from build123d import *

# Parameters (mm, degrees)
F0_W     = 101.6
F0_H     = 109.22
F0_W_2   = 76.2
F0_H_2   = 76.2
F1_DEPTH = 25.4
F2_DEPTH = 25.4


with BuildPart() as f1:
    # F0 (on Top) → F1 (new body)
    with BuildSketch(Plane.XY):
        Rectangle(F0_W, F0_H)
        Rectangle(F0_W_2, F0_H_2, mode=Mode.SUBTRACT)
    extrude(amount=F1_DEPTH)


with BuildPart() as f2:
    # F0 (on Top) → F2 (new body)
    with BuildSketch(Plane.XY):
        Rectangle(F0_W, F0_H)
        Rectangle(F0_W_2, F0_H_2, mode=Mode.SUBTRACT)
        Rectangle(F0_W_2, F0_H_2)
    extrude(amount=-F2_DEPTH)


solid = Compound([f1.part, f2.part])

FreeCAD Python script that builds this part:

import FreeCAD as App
import Part
import Sketcher
Q = App.Units.Quantity

doc = App.newDocument("Part")
body = doc.addObject("PartDesign::Body", "Body")

sketch1 = body.newObject("Sketcher::SketchObject", "Sketch")
sketch1.AttachmentSupport = (doc.getObject("XY_Plane"), [""])
sketch1.MapMode = "FlatFace"
sketch1.addGeometry([
    Part.LineSegment(App.Vector(-51, 55, 0), App.Vector(-51, -55, 0)),
    Part.LineSegment(App.Vector(-51, -55, 0), App.Vector(51, -55, 0)),
    Part.LineSegment(App.Vector(51, -55, 0), App.Vector(51, 55, 0)),
    Part.LineSegment(App.Vector(51, 55, 0), App.Vector(-51, 55, 0)),
    Part.LineSegment(App.Vector(38, -38, 0), App.Vector(-38, -38, 0)),
    Part.LineSegment(App.Vector(-38, -38, 0), App.Vector(-38, 38, 0)),
    Part.LineSegment(App.Vector(-38, 38, 0), App.Vector(38, 38, 0)),
    Part.LineSegment(App.Vector(38, 38, 0), App.Vector(38, -38, 0)),
], False)
sketch1.addConstraint([
    Sketcher.Constraint("Coincident", 0, 2, 1, 1),
    Sketcher.Constraint("Coincident", 1, 2, 2, 1),
    Sketcher.Constraint("Coincident", 2, 2, 3, 1),
    Sketcher.Constraint("Coincident", 3, 2, 0, 1),
    Sketcher.Constraint("Coincident", 4, 2, 5, 1),
    Sketcher.Constraint("Coincident", 5, 2, 6, 1),
    Sketcher.Constraint("Coincident", 6, 2, 7, 1),
    Sketcher.Constraint("Coincident", 7, 2, 4, 1),
    Sketcher.Constraint("Vertical", 0),
    Sketcher.Constraint("Horizontal", 1),
    Sketcher.Constraint("Vertical", 2),
    Sketcher.Constraint("Horizontal", 3),
    Sketcher.Constraint("Horizontal", 4),
    Sketcher.Constraint("Vertical", 5),
    Sketcher.Constraint("Horizontal", 6),
    Sketcher.Constraint("Vertical", 7),
    Sketcher.Constraint("Symmetric", 0, 2, 2, 2, -1, 1),
    Sketcher.Constraint("Symmetric", 4, 2, 6, 2, -1, 1),
    Sketcher.Constraint("Equal", 6, 5),
    Sketcher.Constraint("DistanceX", 1, 1, 1, 2, Q("4 in")),
    Sketcher.Constraint("DistanceX", 4, 2, 4, 1, Q("3 in")),
    Sketcher.Constraint("DistanceY", 0, 2, 0, 1, Q("4.3 in")),
])
pad1 = body.newObject("PartDesign::Pad", "Pad")
pad1.Profile = sketch1
pad1.Length = Q("1 in")
body2 = doc.addObject("PartDesign::Body", "Body001")

sketch2 = body2.newObject("Sketcher::SketchObject", "Sketch001")
sketch2.AttachmentSupport = (doc.getObject("XY_Plane001"), [""])
sketch2.MapMode = "FlatFace"
sketch2.addGeometry([
    Part.LineSegment(App.Vector(-51, 55, 0), App.Vector(-51, -55, 0)),
    Part.LineSegment(App.Vector(-51, -55, 0), App.Vector(51, -55, 0)),
    Part.LineSegment(App.Vector(51, -55, 0), App.Vector(51, 55, 0)),
    Part.LineSegment(App.Vector(51, 55, 0), App.Vector(-51, 55, 0)),
], False)
sketch2.addConstraint([
    Sketcher.Constraint("Coincident", 0, 2, 1, 1),
    Sketcher.Constraint("Coincident", 1, 2, 2, 1),
    Sketcher.Constraint("Coincident", 2, 2, 3, 1),
    Sketcher.Constraint("Coincident", 3, 2, 0, 1),
    Sketcher.Constraint("Vertical", 0),
    Sketcher.Constraint("Horizontal", 1),
    Sketcher.Constraint("Vertical", 2),
    Sketcher.Constraint("Horizontal", 3),
    Sketcher.Constraint("Symmetric", 0, 2, 2, 2, -1, 1),
    Sketcher.Constraint("DistanceX", 1, 1, 1, 2, Q("4 in")),
    Sketcher.Constraint("DistanceY", 0, 2, 0, 1, Q("4.3 in")),
])
pad2 = body2.newObject("PartDesign::Pad", "Pad001")
pad2.Profile = sketch2
pad2.Length = Q("1 in")
pad2.Reversed = True

doc.recompute()
